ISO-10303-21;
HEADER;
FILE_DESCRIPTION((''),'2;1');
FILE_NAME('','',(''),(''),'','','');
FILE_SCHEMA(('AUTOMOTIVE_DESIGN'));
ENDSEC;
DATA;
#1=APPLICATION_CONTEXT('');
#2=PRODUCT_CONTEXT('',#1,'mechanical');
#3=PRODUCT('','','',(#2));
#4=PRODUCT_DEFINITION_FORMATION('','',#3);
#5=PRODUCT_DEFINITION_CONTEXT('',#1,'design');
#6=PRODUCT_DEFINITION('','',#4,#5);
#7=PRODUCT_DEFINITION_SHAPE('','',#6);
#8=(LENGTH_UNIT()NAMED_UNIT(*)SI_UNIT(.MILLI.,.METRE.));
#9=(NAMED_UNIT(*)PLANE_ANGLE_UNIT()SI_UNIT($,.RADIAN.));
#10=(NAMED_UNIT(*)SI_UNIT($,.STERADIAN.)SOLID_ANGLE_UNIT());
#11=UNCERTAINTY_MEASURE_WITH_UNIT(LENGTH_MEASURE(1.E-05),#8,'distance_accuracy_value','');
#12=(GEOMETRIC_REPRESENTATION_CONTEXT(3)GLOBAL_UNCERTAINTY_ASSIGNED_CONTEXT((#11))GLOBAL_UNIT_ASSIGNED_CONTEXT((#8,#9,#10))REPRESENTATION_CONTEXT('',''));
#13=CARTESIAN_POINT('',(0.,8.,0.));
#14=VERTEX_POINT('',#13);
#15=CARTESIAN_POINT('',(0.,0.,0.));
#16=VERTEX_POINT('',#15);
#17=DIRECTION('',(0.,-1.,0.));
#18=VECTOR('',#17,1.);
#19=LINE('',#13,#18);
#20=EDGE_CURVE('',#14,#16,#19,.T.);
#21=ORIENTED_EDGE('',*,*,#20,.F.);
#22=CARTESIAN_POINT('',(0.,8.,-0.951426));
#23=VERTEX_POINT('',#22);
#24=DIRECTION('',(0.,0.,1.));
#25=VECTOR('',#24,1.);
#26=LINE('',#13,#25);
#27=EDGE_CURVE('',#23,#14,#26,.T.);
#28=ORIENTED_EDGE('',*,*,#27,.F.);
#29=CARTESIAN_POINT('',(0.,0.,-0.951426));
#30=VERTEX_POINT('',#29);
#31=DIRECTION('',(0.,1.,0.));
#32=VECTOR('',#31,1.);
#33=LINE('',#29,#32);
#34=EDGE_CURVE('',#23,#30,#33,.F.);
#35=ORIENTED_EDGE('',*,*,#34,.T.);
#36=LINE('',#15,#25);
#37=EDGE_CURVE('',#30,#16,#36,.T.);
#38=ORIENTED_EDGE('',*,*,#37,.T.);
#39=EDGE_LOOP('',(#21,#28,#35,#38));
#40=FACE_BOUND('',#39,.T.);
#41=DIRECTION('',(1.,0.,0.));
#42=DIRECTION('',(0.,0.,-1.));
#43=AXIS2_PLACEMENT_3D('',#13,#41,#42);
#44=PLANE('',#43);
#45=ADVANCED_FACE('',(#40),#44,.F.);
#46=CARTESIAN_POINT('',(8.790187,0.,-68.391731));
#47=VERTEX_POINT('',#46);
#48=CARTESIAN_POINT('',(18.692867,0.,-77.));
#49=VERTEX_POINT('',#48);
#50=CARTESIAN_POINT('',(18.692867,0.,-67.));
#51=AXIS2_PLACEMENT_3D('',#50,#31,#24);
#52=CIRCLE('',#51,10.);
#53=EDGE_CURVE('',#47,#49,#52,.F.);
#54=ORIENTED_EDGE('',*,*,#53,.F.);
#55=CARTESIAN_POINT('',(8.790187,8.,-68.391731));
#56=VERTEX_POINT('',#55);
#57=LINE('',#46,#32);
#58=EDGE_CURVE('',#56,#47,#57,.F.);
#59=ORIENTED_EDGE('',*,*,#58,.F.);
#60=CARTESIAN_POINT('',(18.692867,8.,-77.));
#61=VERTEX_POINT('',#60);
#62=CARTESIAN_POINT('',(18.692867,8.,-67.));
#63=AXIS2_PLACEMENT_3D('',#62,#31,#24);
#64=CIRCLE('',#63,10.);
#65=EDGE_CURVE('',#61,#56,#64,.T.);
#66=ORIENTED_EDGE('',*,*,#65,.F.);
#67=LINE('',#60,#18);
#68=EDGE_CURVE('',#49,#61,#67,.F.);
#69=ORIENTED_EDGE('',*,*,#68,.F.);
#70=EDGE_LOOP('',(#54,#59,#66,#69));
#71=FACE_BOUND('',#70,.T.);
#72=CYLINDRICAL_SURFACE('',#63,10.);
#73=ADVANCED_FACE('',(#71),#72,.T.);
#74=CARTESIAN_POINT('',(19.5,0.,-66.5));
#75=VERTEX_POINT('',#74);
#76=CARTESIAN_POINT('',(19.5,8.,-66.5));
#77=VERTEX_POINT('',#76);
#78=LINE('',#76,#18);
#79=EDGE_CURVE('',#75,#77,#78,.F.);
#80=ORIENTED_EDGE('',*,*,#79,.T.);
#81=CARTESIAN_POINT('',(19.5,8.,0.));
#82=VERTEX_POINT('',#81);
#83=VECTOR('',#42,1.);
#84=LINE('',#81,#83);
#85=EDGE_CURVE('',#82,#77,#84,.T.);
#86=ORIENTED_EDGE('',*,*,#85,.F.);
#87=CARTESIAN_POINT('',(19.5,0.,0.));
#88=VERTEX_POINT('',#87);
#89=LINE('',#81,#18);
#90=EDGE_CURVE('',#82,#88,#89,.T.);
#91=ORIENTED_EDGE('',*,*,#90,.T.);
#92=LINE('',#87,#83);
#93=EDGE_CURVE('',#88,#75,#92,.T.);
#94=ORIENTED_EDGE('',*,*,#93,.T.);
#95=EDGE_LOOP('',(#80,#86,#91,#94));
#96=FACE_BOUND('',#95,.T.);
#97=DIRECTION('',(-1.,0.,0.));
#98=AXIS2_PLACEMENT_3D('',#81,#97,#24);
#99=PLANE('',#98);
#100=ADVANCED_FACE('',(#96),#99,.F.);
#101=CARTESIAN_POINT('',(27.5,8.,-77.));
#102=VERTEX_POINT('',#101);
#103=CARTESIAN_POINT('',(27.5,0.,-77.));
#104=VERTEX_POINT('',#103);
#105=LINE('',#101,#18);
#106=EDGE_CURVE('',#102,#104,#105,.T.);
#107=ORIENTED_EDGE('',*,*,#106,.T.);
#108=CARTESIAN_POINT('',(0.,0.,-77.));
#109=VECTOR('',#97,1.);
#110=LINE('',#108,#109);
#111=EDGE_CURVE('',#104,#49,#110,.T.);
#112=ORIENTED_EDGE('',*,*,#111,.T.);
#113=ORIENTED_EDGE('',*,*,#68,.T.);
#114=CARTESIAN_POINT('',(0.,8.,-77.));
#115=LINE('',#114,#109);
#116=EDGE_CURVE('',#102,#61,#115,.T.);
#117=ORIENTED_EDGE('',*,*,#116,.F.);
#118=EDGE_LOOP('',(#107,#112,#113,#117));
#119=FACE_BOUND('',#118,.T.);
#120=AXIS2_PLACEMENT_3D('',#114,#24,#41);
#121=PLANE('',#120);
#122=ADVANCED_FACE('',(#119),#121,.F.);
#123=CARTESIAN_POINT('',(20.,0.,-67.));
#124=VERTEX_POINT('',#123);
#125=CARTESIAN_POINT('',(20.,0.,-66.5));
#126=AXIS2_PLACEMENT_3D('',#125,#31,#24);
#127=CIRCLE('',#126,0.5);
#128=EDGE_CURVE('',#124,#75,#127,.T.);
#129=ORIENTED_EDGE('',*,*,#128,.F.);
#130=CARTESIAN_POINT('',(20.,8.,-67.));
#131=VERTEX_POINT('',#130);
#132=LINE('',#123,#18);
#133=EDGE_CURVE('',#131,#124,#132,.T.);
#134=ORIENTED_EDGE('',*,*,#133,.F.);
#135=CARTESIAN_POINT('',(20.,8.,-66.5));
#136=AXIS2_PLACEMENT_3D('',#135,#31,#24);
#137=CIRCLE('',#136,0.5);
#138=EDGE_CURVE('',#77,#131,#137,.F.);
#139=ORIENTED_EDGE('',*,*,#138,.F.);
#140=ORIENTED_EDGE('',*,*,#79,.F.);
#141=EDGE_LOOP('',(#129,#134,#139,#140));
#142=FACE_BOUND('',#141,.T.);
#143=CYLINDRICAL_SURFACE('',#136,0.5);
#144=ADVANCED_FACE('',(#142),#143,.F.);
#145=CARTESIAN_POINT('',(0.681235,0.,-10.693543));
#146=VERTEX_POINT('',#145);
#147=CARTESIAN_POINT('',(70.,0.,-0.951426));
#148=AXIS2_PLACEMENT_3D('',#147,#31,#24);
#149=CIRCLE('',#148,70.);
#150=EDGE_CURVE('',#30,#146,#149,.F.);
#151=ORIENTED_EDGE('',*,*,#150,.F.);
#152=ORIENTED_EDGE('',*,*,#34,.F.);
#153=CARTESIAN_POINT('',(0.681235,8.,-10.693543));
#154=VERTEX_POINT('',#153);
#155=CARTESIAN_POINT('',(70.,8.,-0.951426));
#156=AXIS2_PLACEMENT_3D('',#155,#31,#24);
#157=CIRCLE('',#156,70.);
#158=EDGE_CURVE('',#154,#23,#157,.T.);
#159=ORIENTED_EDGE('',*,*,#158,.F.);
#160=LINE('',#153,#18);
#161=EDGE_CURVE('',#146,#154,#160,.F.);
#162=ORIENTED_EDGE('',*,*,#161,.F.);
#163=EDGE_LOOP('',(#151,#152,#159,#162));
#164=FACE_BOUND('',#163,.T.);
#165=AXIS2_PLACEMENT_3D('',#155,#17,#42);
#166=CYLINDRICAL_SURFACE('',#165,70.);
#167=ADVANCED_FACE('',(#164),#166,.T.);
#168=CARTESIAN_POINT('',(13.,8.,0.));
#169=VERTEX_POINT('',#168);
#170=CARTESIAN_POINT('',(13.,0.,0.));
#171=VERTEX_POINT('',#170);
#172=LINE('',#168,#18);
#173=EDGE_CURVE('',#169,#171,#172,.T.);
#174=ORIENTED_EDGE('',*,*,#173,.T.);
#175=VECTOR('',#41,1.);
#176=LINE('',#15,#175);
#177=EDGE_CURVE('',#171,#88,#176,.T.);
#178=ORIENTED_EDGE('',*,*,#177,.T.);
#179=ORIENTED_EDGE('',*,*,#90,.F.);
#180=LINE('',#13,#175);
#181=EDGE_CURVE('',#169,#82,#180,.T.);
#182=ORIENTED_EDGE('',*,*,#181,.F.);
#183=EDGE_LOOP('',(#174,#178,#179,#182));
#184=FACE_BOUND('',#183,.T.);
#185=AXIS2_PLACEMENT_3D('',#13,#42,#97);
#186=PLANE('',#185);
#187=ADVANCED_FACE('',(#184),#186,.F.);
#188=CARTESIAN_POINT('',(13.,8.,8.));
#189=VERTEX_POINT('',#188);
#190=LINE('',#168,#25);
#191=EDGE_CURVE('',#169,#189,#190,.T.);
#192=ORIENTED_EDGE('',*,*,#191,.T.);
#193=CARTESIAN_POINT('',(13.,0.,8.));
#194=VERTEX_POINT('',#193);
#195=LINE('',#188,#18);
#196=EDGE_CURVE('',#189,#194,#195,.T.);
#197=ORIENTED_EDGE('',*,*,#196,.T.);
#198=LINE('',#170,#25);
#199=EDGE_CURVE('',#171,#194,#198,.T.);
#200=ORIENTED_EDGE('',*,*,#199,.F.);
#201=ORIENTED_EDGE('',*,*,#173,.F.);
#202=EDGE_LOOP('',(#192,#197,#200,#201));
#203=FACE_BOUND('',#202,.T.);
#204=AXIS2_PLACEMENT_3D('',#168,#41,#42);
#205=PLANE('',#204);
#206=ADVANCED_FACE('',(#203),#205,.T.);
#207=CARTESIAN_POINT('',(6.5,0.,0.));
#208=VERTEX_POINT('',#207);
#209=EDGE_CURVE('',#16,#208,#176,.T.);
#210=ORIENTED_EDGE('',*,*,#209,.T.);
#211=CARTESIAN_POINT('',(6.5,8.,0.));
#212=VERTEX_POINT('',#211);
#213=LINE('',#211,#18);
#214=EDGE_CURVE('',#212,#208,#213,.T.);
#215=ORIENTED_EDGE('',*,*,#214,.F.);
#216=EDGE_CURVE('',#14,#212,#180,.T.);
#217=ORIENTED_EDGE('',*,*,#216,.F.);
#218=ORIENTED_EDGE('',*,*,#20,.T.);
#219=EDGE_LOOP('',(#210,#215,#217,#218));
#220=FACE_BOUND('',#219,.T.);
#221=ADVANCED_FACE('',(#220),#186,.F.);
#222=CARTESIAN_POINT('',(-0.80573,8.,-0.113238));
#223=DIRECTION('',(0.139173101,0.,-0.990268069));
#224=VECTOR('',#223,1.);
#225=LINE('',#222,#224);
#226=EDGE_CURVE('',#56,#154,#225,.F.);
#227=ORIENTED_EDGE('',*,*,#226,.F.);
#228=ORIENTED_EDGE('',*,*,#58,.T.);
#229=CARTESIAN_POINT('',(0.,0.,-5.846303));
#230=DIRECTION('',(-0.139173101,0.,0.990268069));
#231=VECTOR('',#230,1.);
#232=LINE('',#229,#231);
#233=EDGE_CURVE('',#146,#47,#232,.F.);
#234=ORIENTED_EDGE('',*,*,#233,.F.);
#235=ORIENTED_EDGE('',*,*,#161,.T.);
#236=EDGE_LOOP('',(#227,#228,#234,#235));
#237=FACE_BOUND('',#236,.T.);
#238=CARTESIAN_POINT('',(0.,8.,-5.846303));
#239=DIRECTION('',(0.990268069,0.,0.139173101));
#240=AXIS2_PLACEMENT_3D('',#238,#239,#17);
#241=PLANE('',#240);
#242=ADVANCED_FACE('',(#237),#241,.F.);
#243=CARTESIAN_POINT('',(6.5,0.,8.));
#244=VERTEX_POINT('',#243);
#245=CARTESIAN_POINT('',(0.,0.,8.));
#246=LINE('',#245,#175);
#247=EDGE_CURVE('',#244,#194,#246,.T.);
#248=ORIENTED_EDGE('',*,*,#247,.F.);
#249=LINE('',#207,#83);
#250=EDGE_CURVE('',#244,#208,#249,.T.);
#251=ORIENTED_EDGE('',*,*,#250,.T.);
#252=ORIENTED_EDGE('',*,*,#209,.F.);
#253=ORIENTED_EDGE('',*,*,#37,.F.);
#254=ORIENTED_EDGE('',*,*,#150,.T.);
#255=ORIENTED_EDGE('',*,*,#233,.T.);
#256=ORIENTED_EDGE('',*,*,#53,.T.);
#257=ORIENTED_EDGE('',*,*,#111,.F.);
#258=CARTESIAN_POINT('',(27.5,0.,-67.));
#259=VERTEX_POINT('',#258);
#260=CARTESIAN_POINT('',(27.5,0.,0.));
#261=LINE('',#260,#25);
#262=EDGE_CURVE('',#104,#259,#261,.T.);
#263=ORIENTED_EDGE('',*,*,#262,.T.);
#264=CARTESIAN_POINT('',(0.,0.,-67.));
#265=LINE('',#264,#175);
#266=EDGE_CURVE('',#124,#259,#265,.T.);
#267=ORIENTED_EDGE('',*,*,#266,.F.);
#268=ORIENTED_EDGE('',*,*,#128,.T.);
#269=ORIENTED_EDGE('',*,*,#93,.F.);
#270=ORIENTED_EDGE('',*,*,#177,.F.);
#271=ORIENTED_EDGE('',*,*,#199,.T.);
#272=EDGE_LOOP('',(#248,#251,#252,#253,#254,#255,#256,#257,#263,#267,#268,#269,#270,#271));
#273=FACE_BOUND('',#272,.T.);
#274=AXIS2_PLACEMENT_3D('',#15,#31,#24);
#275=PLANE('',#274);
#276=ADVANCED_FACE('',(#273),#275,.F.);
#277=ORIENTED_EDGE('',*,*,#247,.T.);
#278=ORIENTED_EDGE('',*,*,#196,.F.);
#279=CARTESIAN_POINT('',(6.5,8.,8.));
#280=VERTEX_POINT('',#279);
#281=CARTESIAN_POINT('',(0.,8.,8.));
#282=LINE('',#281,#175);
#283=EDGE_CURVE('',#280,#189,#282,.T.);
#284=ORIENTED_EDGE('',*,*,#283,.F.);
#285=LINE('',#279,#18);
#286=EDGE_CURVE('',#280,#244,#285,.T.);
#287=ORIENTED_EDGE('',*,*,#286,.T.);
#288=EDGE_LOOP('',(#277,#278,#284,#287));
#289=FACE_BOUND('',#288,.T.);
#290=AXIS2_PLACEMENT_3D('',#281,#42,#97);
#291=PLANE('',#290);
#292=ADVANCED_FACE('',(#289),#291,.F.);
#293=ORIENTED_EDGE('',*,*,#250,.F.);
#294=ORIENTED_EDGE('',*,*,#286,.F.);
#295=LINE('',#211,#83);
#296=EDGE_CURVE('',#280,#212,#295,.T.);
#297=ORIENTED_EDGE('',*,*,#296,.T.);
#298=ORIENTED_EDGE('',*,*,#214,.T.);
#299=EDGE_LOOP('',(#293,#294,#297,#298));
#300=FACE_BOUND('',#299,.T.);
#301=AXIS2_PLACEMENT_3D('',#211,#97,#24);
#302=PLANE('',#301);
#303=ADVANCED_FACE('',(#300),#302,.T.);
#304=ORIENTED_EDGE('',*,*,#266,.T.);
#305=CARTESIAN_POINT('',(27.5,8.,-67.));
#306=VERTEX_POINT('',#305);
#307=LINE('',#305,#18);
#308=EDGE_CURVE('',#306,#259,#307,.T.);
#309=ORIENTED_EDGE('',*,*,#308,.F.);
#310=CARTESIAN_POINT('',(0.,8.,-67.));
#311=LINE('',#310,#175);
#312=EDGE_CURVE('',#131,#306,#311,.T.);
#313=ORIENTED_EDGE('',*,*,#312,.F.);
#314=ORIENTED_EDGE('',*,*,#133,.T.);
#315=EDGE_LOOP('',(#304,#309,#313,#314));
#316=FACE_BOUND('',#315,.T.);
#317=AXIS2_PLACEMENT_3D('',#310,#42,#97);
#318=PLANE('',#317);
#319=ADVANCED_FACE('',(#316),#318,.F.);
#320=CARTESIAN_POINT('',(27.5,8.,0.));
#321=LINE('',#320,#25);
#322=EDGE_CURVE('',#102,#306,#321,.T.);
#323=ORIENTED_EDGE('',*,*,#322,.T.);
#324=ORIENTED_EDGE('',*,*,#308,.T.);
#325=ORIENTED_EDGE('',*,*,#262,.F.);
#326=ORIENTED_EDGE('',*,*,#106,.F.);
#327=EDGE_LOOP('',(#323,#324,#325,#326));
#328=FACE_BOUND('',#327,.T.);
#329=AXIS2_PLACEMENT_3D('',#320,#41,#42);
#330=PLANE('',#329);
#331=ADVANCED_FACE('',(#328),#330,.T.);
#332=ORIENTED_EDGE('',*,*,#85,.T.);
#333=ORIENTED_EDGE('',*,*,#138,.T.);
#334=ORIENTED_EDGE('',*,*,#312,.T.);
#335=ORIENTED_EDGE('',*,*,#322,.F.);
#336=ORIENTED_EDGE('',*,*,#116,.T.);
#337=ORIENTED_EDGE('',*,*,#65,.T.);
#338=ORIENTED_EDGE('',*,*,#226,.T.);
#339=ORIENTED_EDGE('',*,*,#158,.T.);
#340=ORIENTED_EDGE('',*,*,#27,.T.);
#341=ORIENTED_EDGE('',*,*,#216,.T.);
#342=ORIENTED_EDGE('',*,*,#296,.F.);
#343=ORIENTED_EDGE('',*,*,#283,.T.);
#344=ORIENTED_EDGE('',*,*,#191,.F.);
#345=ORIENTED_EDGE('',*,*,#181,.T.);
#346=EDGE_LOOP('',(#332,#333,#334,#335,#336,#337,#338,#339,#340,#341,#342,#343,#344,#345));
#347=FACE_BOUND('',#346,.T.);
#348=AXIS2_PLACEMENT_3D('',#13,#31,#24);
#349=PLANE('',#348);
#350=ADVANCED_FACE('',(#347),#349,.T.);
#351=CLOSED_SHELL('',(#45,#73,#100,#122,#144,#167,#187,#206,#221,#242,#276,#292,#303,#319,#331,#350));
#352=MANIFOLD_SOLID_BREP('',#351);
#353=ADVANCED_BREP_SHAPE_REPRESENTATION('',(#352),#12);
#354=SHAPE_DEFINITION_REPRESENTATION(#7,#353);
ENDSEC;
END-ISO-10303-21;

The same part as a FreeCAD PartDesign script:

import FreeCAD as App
import Part
import Sketcher

V = App.Vector
Q = App.Units.Quantity


def edges_at(feature, points):
    """Names of the edges that pass closest to the given points."""
    edges = feature.Shape.Edges
    near = lambda p: min(range(len(edges)), key=lambda i: edges[i].distToShape(Part.Vertex(*p))[0])
    return sorted({f"Edge{near(p) + 1}" for p in points})

doc = App.newDocument("Part")
params = doc.addObject("Spreadsheet::Sheet", "Params")
for row, (alias, value) in enumerate([
    ("sketch1_width", "8 mm"),
    ("sketch1_height", "77 mm"),
    ("sketch1_height2", "67 mm"),
    ("sketch1_width2", "6.5 mm"),
    ("pad1_length", "8 mm"),
    ("chamfer_size", "10 mm"),
    ("chamfer_size2", "71.153697 mm"),
    ("fillet_radius", "10 mm"),
    ("fillet2_radius", "70 mm"),
    ("fillet3_radius", "0.5 mm"),
], start=1):
    params.set(f"A{row}", alias)
    params.set(f"B{row}", "=" + value)
    params.setAlias(f"B{row}", alias)

body = doc.addObject("PartDesign::Body", "Body")

# Sketch on XZ plane
sketch1 = body.newObject("Sketcher::SketchObject", "Sketch")
sketch1.AttachmentSupport = (doc.getObject("XZ_Plane"), [""])
sketch1.MapMode = "FlatFace"
sketch1.addGeometry(Part.LineSegment(V(0, -77, 0), V(0, 0, 0)), False)
sketch1.addGeometry(Part.LineSegment(V(0, 0, 0), V(6.5, 0, 0)), False)
sketch1.addGeometry(Part.LineSegment(V(6.5, 0, 0), V(6.5, 8, 0)), False)
sketch1.addGeometry(Part.LineSegment(V(6.5, 8, 0), V(13, 8, 0)), False)
sketch1.addGeometry(Part.LineSegment(V(13, 8, 0), V(13, 0, 0)), False)
sketch1.addGeometry(Part.LineSegment(V(13, 0, 0), V(19.5, 0, 0)), False)
sketch1.addGeometry(Part.LineSegment(V(19.5, 0, 0), V(19.5, -67, 0)), False)
sketch1.addGeometry(Part.LineSegment(V(19.5, -67, 0), V(27.5, -67, 0)), False)
sketch1.addGeometry(Part.LineSegment(V(27.5, -67, 0), V(27.5, -77, 0)), False)
sketch1.addGeometry(Part.LineSegment(V(27.5, -77, 0), V(0, -77, 0)), False)
sketch1.addConstraint(Sketcher.Constraint("Coincident", 0, 2, 1, 1))
sketch1.addConstraint(Sketcher.Constraint("Coincident", 1, 2, 2, 1))
sketch1.addConstraint(Sketcher.Constraint("Coincident", 2, 2, 3, 1))
sketch1.addConstraint(Sketcher.Constraint("Coincident", 3, 2, 4, 1))
sketch1.addConstraint(Sketcher.Constraint("Coincident", 4, 2, 5, 1))
sketch1.addConstraint(Sketcher.Constraint("Coincident", 5, 2, 6, 1))
sketch1.addConstraint(Sketcher.Constraint("Coincident", 6, 2, 7, 1))
sketch1.addConstraint(Sketcher.Constraint("Coincident", 7, 2, 8, 1))
sketch1.addConstraint(Sketcher.Constraint("Coincident", 8, 2, 9, 1))
sketch1.addConstraint(Sketcher.Constraint("Coincident", 9, 2, 0, 1))
sketch1.addConstraint(Sketcher.Constraint("Vertical", 0))
sketch1.addConstraint(Sketcher.Constraint("Horizontal", 1))
sketch1.addConstraint(Sketcher.Constraint("Vertical", 2))
sketch1.addConstraint(Sketcher.Constraint("Horizontal", 3))
sketch1.addConstraint(Sketcher.Constraint("Vertical", 4))
sketch1.addConstraint(Sketcher.Constraint("Horizontal", 5))
sketch1.addConstraint(Sketcher.Constraint("Vertical", 6))
sketch1.addConstraint(Sketcher.Constraint("Horizontal", 7))
sketch1.addConstraint(Sketcher.Constraint("Vertical", 8))
sketch1.addConstraint(Sketcher.Constraint("Horizontal", 9))
sketch1.addConstraint(Sketcher.Constraint("Coincident", 0, 2, -1, 1))
sketch1.addConstraint(Sketcher.Constraint("PointOnObject", 4, 2, -1))
sketch1.addConstraint(Sketcher.Constraint("Equal", 1, 3))
sketch1.addConstraint(Sketcher.Constraint("Equal", 3, 5))
sketch1.addConstraint(Sketcher.Constraint("Equal", 7, 2))
sketch1.addConstraint(Sketcher.Constraint("DistanceX", 7, 1, 7, 2, Q("8 mm")))
sketch1.addConstraint(Sketcher.Constraint("DistanceY", 0, 1, 0, 2, Q("77 mm")))
sketch1.addConstraint(Sketcher.Constraint("DistanceY", 6, 2, 6, 1, Q("67 mm")))
sketch1.addConstraint(Sketcher.Constraint("DistanceX", 1, 1, 1, 2, Q("6.5 mm")))
sketch1.setExpression("Constraints[25]", "Params.sketch1_width")
sketch1.setExpression("Constraints[26]", "Params.sketch1_height")
sketch1.setExpression("Constraints[27]", "Params.sketch1_height2")
sketch1.setExpression("Constraints[28]", "Params.sketch1_width2")
pad1 = body.newObject("PartDesign::Pad", "Pad")
pad1.Profile = sketch1
pad1.setExpression("Length", "Params.pad1_length")
pad1.Reversed = True
doc.recompute()

chamfer = body.newObject("PartDesign::Chamfer", "Chamfer")
chamfer.Base = (pad1, edges_at(pad1, [(0, 4, -77)]))
chamfer.ChamferType = "Two distances"
chamfer.setExpression("Size", "Params.chamfer_size")
chamfer.setExpression("Size2", "Params.chamfer_size2")
chamfer.FlipDirection = True
doc.recompute()

fillet = body.newObject("PartDesign::Fillet", "Fillet")
fillet.Base = (chamfer, edges_at(chamfer, [(10, 4, -77)]))
fillet.setExpression("Radius", "Params.fillet_radius")
doc.recompute()

fillet2 = body.newObject("PartDesign::Fillet", "Fillet001")
fillet2.Base = (fillet, edges_at(fillet, [(0, 4, -5.846)]))
fillet2.setExpression("Radius", "Params.fillet2_radius")
doc.recompute()

fillet3 = body.newObject("PartDesign::Fillet", "Fillet002")
fillet3.Base = (fillet2, edges_at(fillet2, [(19.5, 4, -67)]))
fillet3.setExpression("Radius", "Params.fillet3_radius")

doc.recompute()
